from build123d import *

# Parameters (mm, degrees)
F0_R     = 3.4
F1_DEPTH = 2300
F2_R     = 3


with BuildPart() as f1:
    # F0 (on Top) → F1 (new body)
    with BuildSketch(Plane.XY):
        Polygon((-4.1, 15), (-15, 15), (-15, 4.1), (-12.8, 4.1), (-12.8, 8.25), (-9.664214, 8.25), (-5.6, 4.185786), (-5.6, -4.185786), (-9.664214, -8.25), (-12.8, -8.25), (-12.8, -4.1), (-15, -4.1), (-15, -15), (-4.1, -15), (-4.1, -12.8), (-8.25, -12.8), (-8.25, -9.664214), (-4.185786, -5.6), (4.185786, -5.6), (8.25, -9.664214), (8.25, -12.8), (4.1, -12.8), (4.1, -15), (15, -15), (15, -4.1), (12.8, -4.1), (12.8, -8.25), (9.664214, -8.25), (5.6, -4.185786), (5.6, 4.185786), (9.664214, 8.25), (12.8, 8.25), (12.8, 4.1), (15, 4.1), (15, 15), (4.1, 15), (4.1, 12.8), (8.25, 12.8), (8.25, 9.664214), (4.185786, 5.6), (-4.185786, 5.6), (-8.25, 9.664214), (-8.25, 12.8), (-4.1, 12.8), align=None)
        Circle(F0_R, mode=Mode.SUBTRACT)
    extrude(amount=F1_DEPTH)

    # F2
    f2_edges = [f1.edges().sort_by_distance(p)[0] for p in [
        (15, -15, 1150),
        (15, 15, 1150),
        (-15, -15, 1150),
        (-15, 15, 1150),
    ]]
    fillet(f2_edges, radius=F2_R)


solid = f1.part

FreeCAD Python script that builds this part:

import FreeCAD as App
import Part
import Sketcher

V = App.Vector


def edges_at(feature, points):
    """Names of the edges that pass closest to the given points."""
    edges = feature.Shape.Edges
    near = lambda p: min(range(len(edges)), key=lambda i: edges[i].distToShape(Part.Vertex(*p))[0])
    return sorted({f"Edge{near(p) + 1}" for p in points})

doc = App.newDocument("Part")
body = doc.addObject("PartDesign::Body", "Body")

sketch1 = body.newObject("Sketcher::SketchObject", "Sketch")
sketch1.AttachmentSupport = (doc.getObject("XY_Plane"), [""])
sketch1.MapMode = "FlatFace"
sketch1.addGeometry([
    Part.LineSegment(V(-4.1, 15, 0), V(-15, 15, 0)),
    Part.LineSegment(V(-15, 15, 0), V(-15, 4.1, 0)),
    Part.LineSegment(V(-15, 4.1, 0), V(-12.8, 4.1, 0)),
    Part.LineSegment(V(-12.8, 4.1, 0), V(-12.8, 8.25, 0)),
    Part.LineSegment(V(-12.8, 8.25, 0), V(-9.664214, 8.25, 0)),
    Part.LineSegment(V(-9.664214, 8.25, 0), V(-5.6, 4.185786, 0)),
    Part.LineSegment(V(-5.6, 4.185786, 0), V(-5.6, -4.185786, 0)),
    Part.LineSegment(V(-5.6, -4.185786, 0), V(-9.664214, -8.25, 0)),
    Part.LineSegment(V(-9.664214, -8.25, 0), V(-12.8, -8.25, 0)),
    Part.LineSegment(V(-12.8, -8.25, 0), V(-12.8, -4.1, 0)),
    Part.LineSegment(V(-12.8, -4.1, 0), V(-15, -4.1, 0)),
    Part.LineSegment(V(-15, -4.1, 0), V(-15, -15, 0)),
    Part.LineSegment(V(-15, -15, 0), V(-4.1, -15, 0)),
    Part.LineSegment(V(-4.1, -15, 0), V(-4.1, -12.8, 0)),
    Part.LineSegment(V(-4.1, -12.8, 0), V(-8.25, -12.8, 0)),
    Part.LineSegment(V(-8.25, -12.8, 0), V(-8.25, -9.664214, 0)),
    Part.LineSegment(V(-8.25, -9.664214, 0), V(-4.185786, -5.6, 0)),
    Part.LineSegment(V(-4.185786, -5.6, 0), V(4.185786, -5.6, 0)),
    Part.LineSegment(V(4.185786, -5.6, 0), V(8.25, -9.664214, 0)),
    Part.LineSegment(V(8.25, -9.664214, 0), V(8.25, -12.8, 0)),
    Part.LineSegment(V(8.25, -12.8, 0), V(4.1, -12.8, 0)),
    Part.LineSegment(V(4.1, -12.8, 0), V(4.1, -15, 0)),
    Part.LineSegment(V(4.1, -15, 0), V(15, -15, 0)),
    Part.LineSegment(V(15, -15, 0), V(15, -4.1, 0)),
    Part.LineSegment(V(15, -4.1, 0), V(12.8, -4.1, 0)),
    Part.LineSegment(V(12.8, -4.1, 0), V(12.8, -8.25, 0)),
    Part.LineSegment(V(12.8, -8.25, 0), V(9.664214, -8.25, 0)),
    Part.LineSegment(V(9.664214, -8.25, 0), V(5.6, -4.185786, 0)),
    Part.LineSegment(V(5.6, -4.185786, 0), V(5.6, 4.185786, 0)),
    Part.LineSegment(V(5.6, 4.185786, 0), V(9.664214, 8.25, 0)),
    Part.LineSegment(V(9.664214, 8.25, 0), V(12.8, 8.25, 0)),
    Part.LineSegment(V(12.8, 8.25, 0), V(12.8, 4.1, 0)),
    Part.LineSegment(V(12.8, 4.1, 0), V(15, 4.1, 0)),
    Part.LineSegment(V(15, 4.1, 0), V(15, 15, 0)),
    Part.LineSegment(V(15, 15, 0), V(4.1, 15, 0)),
    Part.LineSegment(V(4.1, 15, 0), V(4.1, 12.8, 0)),
    Part.LineSegment(V(4.1, 12.8, 0), V(8.25, 12.8, 0)),
    Part.LineSegment(V(8.25, 12.8, 0), V(8.25, 9.664214, 0)),
    Part.LineSegment(V(8.25, 9.664214, 0), V(4.185786, 5.6, 0)),
    Part.LineSegment(V(4.185786, 5.6, 0), V(-4.185786, 5.6, 0)),
    Part.LineSegment(V(-4.185786, 5.6, 0), V(-8.25, 9.664214, 0)),
    Part.LineSegment(V(-8.25, 9.664214, 0), V(-8.25, 12.8, 0)),
    Part.LineSegment(V(-8.25, 12.8, 0), V(-4.1, 12.8, 0)),
    Part.LineSegment(V(-4.1, 12.8, 0), V(-4.1, 15, 0)),
    Part.Circle(V(0, 0, 0), V(0, 0, 1), 3.4),
], False)
sketch1.addConstraint([
    Sketcher.Constraint("Coincident", 0, 2, 1, 1),
    Sketcher.Constraint("Coincident", 1, 2, 2, 1),
    Sketcher.Constraint("Coincident", 2, 2, 3, 1),
    Sketcher.Constraint("Coincident", 3, 2, 4, 1),
    Sketcher.Constraint("Coincident", 4, 2, 5, 1),
    Sketcher.Constraint("Coincident", 5, 2, 6, 1),
    Sketcher.Constraint("Coincident", 6, 2, 7, 1),
    Sketcher.Constraint("Coincident", 7, 2, 8, 1),
    Sketcher.Constraint("Coincident", 8, 2, 9, 1),
    Sketcher.Constraint("Coincident", 9, 2, 10, 1),
    Sketcher.Constraint("Coincident", 10, 2, 11, 1),
    Sketcher.Constraint("Coincident", 11, 2, 12, 1),
    Sketcher.Constraint("Coincident", 12, 2, 13, 1),
    Sketcher.Constraint("Coincident", 13, 2, 14, 1),
    Sketcher.Constraint("Coincident", 14, 2, 15, 1),
    Sketcher.Constraint("Coincident", 15, 2, 16, 1),
    Sketcher.Constraint("Coincident", 16, 2, 17, 1),
    Sketcher.Constraint("Coincident", 17, 2, 18, 1),
    Sketcher.Constraint("Coincident", 18, 2, 19, 1),
    Sketcher.Constraint("Coincident", 19, 2, 20, 1),
    Sketcher.Constraint("Coincident", 20, 2, 21, 1),
    Sketcher.Constraint("Coincident", 21, 2, 22, 1),
    Sketcher.Constraint("Coincident", 22, 2, 23, 1),
    Sketcher.Constraint("Coincident", 23, 2, 24, 1),
    Sketcher.Constraint("Coincident", 24, 2, 25, 1),
    Sketcher.Constraint("Coincident", 25, 2, 26, 1),
    Sketcher.Constraint("Coincident", 26, 2, 27, 1),
    Sketcher.Constraint("Coincident", 27, 2, 28, 1),
    Sketcher.Constraint("Coincident", 28, 2, 29, 1),
    Sketcher.Constraint("Coincident", 29, 2, 30, 1),
    Sketcher.Constraint("Coincident", 30, 2, 31, 1),
    Sketcher.Constraint("Coincident", 31, 2, 32, 1),
    Sketcher.Constraint("Coincident", 32, 2, 33, 1),
    Sketcher.Constraint("Coincident", 33, 2, 34, 1),
    Sketcher.Constraint("Coincident", 34, 2, 35, 1),
    Sketcher.Constraint("Coincident", 35, 2, 36, 1),
    Sketcher.Constraint("Coincident", 36, 2, 37, 1),
    Sketcher.Constraint("Coincident", 37, 2, 38, 1),
    Sketcher.Constraint("Coincident", 38, 2, 39, 1),
    Sketcher.Constraint("Coincident", 39, 2, 40, 1),
    Sketcher.Constraint("Coincident", 40, 2, 41, 1),
    Sketcher.Constraint("Coincident", 41, 2, 42, 1),
    Sketcher.Constraint("Coincident", 42, 2, 43, 1),
    Sketcher.Constraint("Coincident", 43, 2, 0, 1),
    Sketcher.Constraint("Horizontal", 0),
    Sketcher.Constraint("Vertical", 1),
    Sketcher.Constraint("Horizontal", 2),
    Sketcher.Constraint("Vertical", 3),
    Sketcher.Constraint("Horizontal", 4),
    Sketcher.Constraint("Vertical", 6),
    Sketcher.Constraint("Horizontal", 8),
    Sketcher.Constraint("Vertical", 9),
    Sketcher.Constraint("Horizontal", 10),
    Sketcher.Constraint("Vertical", 11),
    Sketcher.Constraint("Horizontal", 12),
    Sketcher.Constraint("Vertical", 13),
    Sketcher.Constraint("Horizontal", 14),
    Sketcher.Constraint("Vertical", 15),
    Sketcher.Constraint("Horizontal", 17),
    Sketcher.Constraint("Vertical", 19),
    Sketcher.Constraint("Horizontal", 20),
    Sketcher.Constraint("Vertical", 21),
    Sketcher.Constraint("Horizontal", 22),
    Sketcher.Constraint("Vertical", 23),
    Sketcher.Constraint("Horizontal", 24),
    Sketcher.Constraint("Vertical", 25),
    Sketcher.Constraint("Horizontal", 26),
    Sketcher.Constraint("Vertical", 28),
    Sketcher.Constraint("Horizontal", 30),
    Sketcher.Constraint("Vertical", 31),
    Sketcher.Constraint("Horizontal", 32),
    Sketcher.Constraint("Vertical", 33),
    Sketcher.Constraint("Horizontal", 34),
    Sketcher.Constraint("Vertical", 35),
    Sketcher.Constraint("Horizontal", 36),
    Sketcher.Constraint("Vertical", 37),
    Sketcher.Constraint("Horizontal", 39),
    Sketcher.Constraint("Vertical", 41),
    Sketcher.Constraint("Horizontal", 42),
    Sketcher.Constraint("Vertical", 43),
    Sketcher.Constraint("Coincident", 44, 3, -1, 1),
    Sketcher.Constraint("Symmetric", 0, 2, 22, 2, -1, 1),
    Sketcher.Constraint("Symmetric", 2, 2, 24, 2, -1, 1),
    Sketcher.Constraint("Symmetric", 4, 2, 26, 2, -1, 1),
    Sketcher.Constraint("Symmetric", 5, 2, 27, 2, -1, 1),
    Sketcher.Constraint("Symmetric", 7, 2, 29, 2, -1, 1),
    Sketcher.Constraint("Symmetric", 9, 2, 31, 2, -1, 1),
    Sketcher.Constraint("Symmetric", 11, 2, 33, 2, -1, 1),
    Sketcher.Constraint("Symmetric", 13, 2, 35, 2, -1, 1),
    Sketcher.Constraint("Symmetric", 15, 2, 37, 2, -1, 1),
    Sketcher.Constraint("Symmetric", 16, 2, 38, 2, -1, 1),
    Sketcher.Constraint("Symmetric", 18, 2, 40, 2, -1, 1),
    Sketcher.Constraint("Symmetric", 20, 2, 42, 2, -1, 1),
    Sketcher.Constraint("Symmetric", 15, 2, 18, 2, -2),
    Sketcher.Constraint("Symmetric", 13, 2, 20, 2, -2),
    Sketcher.Constraint("Symmetric", 11, 2, 22, 2, -2),
    Sketcher.Constraint("Symmetric", 9, 2, 24, 2, -2),
    Sketcher.Constraint("Symmetric", 7, 2, 26, 2, -2),
    Sketcher.Constraint("Perpendicular", 5, 7),
    Sketcher.Constraint("Parallel", 7, 16),
    Sketcher.Constraint("Perpendicular", 16, 18),
    Sketcher.Constraint("Perpendicular", 27, 29),
    Sketcher.Constraint("Perpendicular", 38, 40),
    Sketcher.Constraint("Horizontal", 6, 2, 27, 2),
    Sketcher.Constraint("Equal", 34, 1),
    Sketcher.Constraint("Equal", 42, 3),
    Sketcher.Constraint("Equal", 39, 6),
    Sketcher.Constraint("Equal", 32, 13),
    Sketcher.Constraint("Equal", 30, 15),
    Sketcher.Constraint("Equal", 7, 16),
    Sketcher.Constraint("Diameter", 44, 6.8),
    Sketcher.Constraint("DistanceX", 0, 2, 0, 1, 10.9),
    Sketcher.Constraint("DistanceX", 2, 1, 2, 2, 2.2),
    Sketcher.Constraint("DistanceX", 0, 2, -1, 1, 15.0),
    Sketcher.Constraint("DistanceX", 14, 2, 14, 1, 4.15),
    Sketcher.Constraint("DistanceX", 5, 2, -1, 1, 5.6),
    Sketcher.Constraint("DistanceX", 4, 1, 4, 2, 3.135786),
])
pad1 = body.newObject("PartDesign::Pad", "Pad")
pad1.Profile = sketch1
pad1.Length = 2300
doc.recompute()

fillet = body.newObject("PartDesign::Fillet", "Fillet")
fillet.Base = (pad1, edges_at(pad1, [
    (15, -15, 1150),
    (15, 15, 1150),
    (-15, -15, 1150),
    (-15, 15, 1150),
]))
fillet.Radius = 3

doc.recompute()
